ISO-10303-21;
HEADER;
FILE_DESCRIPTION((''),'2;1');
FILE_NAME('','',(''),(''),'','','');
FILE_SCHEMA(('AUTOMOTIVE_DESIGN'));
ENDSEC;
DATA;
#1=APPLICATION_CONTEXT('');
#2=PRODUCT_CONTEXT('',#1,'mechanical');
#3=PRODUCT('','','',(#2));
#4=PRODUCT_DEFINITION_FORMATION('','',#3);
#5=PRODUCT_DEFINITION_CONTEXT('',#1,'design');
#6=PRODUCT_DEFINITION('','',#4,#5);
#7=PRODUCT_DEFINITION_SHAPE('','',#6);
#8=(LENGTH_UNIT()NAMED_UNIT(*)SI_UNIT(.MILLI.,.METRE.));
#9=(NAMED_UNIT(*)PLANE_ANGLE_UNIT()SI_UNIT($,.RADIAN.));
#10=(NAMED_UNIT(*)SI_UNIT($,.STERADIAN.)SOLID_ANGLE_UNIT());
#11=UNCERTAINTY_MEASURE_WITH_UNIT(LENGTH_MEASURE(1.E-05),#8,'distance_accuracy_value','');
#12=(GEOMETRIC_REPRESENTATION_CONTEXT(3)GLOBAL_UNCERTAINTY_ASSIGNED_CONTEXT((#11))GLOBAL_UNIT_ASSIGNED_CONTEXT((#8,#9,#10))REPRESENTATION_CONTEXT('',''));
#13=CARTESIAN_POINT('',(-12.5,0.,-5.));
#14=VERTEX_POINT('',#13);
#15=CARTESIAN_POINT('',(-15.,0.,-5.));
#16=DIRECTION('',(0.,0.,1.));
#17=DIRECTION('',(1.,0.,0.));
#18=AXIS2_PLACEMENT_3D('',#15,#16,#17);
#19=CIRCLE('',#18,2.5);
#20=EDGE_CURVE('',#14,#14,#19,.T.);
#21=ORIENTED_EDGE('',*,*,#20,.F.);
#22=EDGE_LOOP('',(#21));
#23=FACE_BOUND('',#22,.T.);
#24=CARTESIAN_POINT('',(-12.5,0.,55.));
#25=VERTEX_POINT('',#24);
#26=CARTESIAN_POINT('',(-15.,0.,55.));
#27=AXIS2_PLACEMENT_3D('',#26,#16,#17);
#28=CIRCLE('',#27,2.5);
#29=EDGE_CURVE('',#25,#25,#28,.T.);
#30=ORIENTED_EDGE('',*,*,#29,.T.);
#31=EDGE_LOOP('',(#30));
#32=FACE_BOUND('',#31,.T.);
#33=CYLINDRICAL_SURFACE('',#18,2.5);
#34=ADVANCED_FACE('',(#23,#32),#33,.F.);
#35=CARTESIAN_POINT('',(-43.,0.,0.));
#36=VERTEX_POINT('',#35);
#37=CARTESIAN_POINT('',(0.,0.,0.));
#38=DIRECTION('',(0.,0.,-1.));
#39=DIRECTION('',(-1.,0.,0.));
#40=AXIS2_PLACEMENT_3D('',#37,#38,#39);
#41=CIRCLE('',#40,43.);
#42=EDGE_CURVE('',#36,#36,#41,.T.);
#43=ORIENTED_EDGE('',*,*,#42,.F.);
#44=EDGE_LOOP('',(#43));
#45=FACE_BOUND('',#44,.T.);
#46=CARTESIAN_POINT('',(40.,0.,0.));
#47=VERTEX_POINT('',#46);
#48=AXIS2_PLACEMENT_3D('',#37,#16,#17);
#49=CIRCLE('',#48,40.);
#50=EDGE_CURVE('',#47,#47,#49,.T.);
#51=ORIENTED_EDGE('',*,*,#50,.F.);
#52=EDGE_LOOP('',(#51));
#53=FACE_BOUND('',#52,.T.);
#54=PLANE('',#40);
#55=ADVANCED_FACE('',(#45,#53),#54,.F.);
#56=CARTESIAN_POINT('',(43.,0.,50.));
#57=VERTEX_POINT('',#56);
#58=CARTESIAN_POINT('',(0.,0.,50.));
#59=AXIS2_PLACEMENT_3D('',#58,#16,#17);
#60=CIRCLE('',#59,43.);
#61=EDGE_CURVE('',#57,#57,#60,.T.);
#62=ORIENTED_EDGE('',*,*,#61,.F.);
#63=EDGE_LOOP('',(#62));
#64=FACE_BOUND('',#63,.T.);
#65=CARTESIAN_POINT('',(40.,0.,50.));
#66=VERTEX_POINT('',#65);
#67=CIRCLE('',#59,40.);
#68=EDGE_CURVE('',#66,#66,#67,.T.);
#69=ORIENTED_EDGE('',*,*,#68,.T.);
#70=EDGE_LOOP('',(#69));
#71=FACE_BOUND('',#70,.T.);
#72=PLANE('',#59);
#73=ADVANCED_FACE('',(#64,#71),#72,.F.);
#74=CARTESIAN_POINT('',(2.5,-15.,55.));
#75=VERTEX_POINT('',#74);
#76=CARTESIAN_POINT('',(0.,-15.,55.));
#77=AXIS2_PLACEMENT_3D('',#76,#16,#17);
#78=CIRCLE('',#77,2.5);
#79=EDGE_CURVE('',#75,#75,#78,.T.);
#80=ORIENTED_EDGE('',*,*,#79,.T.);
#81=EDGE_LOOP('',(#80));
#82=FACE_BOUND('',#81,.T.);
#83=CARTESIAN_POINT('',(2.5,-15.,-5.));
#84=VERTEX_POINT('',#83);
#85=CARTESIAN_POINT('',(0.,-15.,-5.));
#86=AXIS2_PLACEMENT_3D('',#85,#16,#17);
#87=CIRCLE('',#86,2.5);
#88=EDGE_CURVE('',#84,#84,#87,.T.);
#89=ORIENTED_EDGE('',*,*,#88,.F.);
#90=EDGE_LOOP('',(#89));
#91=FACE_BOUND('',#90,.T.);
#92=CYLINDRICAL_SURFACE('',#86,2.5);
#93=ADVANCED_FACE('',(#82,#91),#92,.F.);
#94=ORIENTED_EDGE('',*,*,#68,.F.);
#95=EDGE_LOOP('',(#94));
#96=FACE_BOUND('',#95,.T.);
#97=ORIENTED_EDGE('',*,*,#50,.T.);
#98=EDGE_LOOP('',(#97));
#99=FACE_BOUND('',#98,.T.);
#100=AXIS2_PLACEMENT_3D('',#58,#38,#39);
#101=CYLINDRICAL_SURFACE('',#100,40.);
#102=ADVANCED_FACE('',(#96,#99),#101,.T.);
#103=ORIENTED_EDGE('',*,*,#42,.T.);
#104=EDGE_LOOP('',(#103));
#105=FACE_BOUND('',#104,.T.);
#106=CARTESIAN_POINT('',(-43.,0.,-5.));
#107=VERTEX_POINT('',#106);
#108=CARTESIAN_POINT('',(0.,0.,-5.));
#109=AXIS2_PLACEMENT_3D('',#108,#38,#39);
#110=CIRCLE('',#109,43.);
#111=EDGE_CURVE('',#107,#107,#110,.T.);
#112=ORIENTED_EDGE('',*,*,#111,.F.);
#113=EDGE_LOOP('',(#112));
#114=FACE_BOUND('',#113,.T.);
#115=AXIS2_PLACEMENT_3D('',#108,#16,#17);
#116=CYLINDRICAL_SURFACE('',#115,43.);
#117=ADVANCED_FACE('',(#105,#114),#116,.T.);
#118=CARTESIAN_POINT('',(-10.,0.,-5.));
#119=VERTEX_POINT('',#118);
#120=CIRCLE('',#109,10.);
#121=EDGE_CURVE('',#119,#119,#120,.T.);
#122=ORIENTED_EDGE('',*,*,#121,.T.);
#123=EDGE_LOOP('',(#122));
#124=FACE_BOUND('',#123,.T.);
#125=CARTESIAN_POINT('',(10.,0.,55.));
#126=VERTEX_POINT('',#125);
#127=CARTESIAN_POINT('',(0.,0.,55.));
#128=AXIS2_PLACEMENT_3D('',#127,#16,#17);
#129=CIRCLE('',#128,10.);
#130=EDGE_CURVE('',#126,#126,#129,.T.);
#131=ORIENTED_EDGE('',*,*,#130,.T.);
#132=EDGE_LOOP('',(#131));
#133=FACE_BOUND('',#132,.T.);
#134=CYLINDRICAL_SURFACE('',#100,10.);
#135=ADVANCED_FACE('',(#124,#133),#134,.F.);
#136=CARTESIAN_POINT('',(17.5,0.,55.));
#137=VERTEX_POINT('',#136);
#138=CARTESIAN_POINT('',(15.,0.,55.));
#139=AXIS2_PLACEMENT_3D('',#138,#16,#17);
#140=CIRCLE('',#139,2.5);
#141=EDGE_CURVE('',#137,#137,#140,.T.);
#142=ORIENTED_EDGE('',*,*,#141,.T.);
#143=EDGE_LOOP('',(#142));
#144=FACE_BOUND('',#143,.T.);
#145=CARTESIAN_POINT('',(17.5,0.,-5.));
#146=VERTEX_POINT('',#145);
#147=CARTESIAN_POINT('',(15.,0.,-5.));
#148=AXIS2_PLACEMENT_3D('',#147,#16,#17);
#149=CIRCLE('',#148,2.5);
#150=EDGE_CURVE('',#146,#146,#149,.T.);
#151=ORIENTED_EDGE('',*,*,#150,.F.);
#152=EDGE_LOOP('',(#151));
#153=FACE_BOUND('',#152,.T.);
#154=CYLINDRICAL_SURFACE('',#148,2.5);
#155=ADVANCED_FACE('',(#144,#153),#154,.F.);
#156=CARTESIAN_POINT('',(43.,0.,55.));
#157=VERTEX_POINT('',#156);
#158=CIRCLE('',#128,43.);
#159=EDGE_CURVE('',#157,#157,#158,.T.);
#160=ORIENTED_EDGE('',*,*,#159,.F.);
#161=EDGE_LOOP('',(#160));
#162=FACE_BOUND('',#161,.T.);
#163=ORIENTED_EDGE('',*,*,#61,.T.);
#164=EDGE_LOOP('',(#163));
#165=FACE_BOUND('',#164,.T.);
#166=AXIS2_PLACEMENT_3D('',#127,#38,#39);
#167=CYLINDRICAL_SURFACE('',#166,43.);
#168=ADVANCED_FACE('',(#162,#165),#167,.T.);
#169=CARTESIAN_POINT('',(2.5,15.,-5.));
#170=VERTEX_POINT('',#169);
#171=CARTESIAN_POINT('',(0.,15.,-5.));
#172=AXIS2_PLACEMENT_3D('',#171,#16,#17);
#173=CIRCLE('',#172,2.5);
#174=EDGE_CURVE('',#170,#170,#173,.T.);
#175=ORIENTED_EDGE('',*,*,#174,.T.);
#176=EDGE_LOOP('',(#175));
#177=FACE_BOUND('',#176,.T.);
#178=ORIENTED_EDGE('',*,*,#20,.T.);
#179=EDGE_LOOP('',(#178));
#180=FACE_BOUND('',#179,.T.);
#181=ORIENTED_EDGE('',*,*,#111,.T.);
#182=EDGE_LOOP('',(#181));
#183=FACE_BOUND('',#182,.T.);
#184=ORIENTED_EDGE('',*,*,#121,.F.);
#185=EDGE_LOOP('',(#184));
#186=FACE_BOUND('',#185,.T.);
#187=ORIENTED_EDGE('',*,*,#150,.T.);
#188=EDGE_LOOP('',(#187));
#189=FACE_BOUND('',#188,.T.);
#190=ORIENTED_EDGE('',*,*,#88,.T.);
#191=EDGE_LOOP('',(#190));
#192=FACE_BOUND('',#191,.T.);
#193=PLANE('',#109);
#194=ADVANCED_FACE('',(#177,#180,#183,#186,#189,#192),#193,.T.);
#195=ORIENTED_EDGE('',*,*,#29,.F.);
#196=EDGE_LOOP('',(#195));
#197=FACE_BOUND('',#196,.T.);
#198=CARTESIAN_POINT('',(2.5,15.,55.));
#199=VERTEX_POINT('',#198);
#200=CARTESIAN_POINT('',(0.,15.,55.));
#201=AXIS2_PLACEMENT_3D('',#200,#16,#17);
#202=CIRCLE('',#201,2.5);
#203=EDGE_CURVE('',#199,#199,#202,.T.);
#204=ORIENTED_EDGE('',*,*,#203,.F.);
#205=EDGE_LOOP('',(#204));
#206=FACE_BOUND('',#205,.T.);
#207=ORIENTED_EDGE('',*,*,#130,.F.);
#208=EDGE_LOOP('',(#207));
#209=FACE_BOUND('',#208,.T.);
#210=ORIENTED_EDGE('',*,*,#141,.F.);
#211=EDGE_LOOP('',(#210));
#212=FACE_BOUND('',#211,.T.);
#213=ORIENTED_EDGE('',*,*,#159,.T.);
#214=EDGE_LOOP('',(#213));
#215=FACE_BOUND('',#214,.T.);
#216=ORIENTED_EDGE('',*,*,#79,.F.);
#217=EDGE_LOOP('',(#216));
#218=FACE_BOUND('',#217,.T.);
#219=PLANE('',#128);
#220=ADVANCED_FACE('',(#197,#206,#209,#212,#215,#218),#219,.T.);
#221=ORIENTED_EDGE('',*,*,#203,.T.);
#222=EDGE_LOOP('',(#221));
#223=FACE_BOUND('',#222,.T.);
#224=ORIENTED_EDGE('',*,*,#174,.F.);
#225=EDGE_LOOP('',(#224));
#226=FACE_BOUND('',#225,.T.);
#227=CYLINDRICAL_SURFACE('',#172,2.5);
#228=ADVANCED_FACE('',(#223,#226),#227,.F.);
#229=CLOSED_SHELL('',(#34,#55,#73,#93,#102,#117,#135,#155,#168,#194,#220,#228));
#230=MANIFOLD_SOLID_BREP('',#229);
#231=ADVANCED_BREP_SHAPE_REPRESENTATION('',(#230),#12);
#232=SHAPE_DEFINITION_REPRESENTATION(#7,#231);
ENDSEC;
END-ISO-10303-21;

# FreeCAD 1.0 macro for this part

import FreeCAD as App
import Part
import Sketcher

V = App.Vector
Q = App.Units.Quantity

doc = App.newDocument("Part")
params = doc.addObject("Spreadsheet::Sheet", "Params")
for row, (alias, value) in enumerate([
    ("sketch1_diameter", "80 mm"),
    ("sketch1_diameter2", "20 mm"),
    ("pad1_length", "50 mm"),
    ("sketch2_diameter", "86 mm"),
    ("sketch2_diameter2", "20 mm"),
    ("pad2_length", "5 mm"),
    ("sketch3_diameter", "86 mm"),
    ("sketch3_diameter2", "20 mm"),
    ("pad3_length", "5 mm"),
    ("sketch4_diameter", "5 mm"),
], start=1):
    params.set(f"A{row}", alias)
    params.set(f"B{row}", "=" + value)
    params.setAlias(f"B{row}", alias)

body = doc.addObject("PartDesign::Body", "Body")

sketch1 = body.newObject("Sketcher::SketchObject", "Sketch")
sketch1.AttachmentSupport = (doc.getObject("XY_Plane"), [""])
sketch1.MapMode = "FlatFace"
sketch1.addGeometry(Part.Circle(V(0, 0, 0), V(0, 0, 1), 40), False)
sketch1.addGeometry(Part.Circle(V(0, 0, 0), V(0, 0, 1), 10), False)
sketch1.addConstraint(Sketcher.Constraint("Coincident", 0, 3, -1, 1))
sketch1.addConstraint(Sketcher.Constraint("Coincident", 1, 3, -1, 1))
sketch1.addConstraint(Sketcher.Constraint("Diameter", 0, Q("80 mm")))
sketch1.addConstraint(Sketcher.Constraint("Diameter", 1, Q("20 mm")))
sketch1.setExpression("Constraints[2]", "Params.sketch1_diameter")
sketch1.setExpression("Constraints[3]", "Params.sketch1_diameter2")
pad1 = body.newObject("PartDesign::Pad", "Pad")
pad1.Profile = sketch1
pad1.setExpression("Length", "Params.pad1_length")

sketch2 = body.newObject("Sketcher::SketchObject", "Sketch001")
sketch2.AttachmentSupport = (doc.getObject("XY_Plane"), [""])
sketch2.MapMode = "FlatFace"
sketch2.AttachmentOffset = App.Placement(V(0, 0, 50), App.Rotation())
sketch2.addGeometry(Part.Circle(V(0, 0, 0), V(0, 0, 1), 43), False)
sketch2.addGeometry(Part.Circle(V(0, 0, 0), V(0, 0, 1), 10), False)
sketch2.addConstraint(Sketcher.Constraint("Coincident", 0, 3, -1, 1))
sketch2.addConstraint(Sketcher.Constraint("Coincident", 1, 3, -1, 1))
sketch2.addConstraint(Sketcher.Constraint("Diameter", 0, Q("86 mm")))
sketch2.addConstraint(Sketcher.Constraint("Diameter", 1, Q("20 mm")))
sketch2.setExpression("Constraints[2]", "Params.sketch2_diameter")
sketch2.setExpression("Constraints[3]", "Params.sketch2_diameter2")
pad2 = body.newObject("PartDesign::Pad", "Pad001")
pad2.Profile = sketch2
pad2.setExpression("Length", "Params.pad2_length")

sketch3 = body.newObject("Sketcher::SketchObject", "Sketch002")
sketch3.AttachmentSupport = (doc.getObject("XY_Plane"), [""])
sketch3.MapMode = "FlatFace"
sketch3.addGeometry(Part.Circle(V(0, 0, 0), V(0, 0, 1), 43), False)
sketch3.addGeometry(Part.Circle(V(0, 0, 0), V(0, 0, 1), 10), False)
sketch3.addConstraint(Sketcher.Constraint("Coincident", 0, 3, -1, 1))
sketch3.addConstraint(Sketcher.Constraint("Coincident", 1, 3, -1, 1))
sketch3.addConstraint(Sketcher.Constraint("Diameter", 0, Q("86 mm")))
sketch3.addConstraint(Sketcher.Constraint("Diameter", 1, Q("20 mm")))
sketch3.setExpression("Constraints[2]", "Params.sketch3_diameter")
sketch3.setExpression("Constraints[3]", "Params.sketch3_diameter2")
pad3 = body.newObject("PartDesign::Pad", "Pad002")
pad3.Profile = sketch3
pad3.setExpression("Length", "Params.pad3_length")
pad3.Reversed = True

sketch4 = body.newObject("Sketcher::SketchObject", "Sketch003")
sketch4.AttachmentSupport = (doc.getObject("XY_Plane"), [""])
sketch4.MapMode = "FlatFace"
sketch4.AttachmentOffset = App.Placement(V(0, 0, 55), App.Rotation())
sketch4.addGeometry(Part.Circle(V(0, 15, 0), V(0, 0, 1), 2.5), False)
sketch4.addGeometry(Part.Circle(V(15, 0, 0), V(0, 0, 1), 2.5), False)
sketch4.addGeometry(Part.Circle(V(0, -15, 0), V(0, 0, 1), 2.5), False)
sketch4.addGeometry(Part.Circle(V(-15, 0, 0), V(0, 0, 1), 2.5), False)
sketch4.addConstraint(Sketcher.Constraint("Equal", 0, 1))
sketch4.addConstraint(Sketcher.Constraint("Equal", 1, 2))
sketch4.addConstraint(Sketcher.Constraint("Equal", 2, 3))
sketch4.addConstraint(Sketcher.Constraint("Symmetric", 0, 3, 2, 3, -1, 1))
sketch4.addConstraint(Sketcher.Constraint("Symmetric", 1, 3, 3, 3, -1, 1))
sketch4.addConstraint(Sketcher.Constraint("PointOnObject", 0, 3, -2))
sketch4.addConstraint(Sketcher.Constraint("PointOnObject", 1, 3, -1))
sketch4.addConstraint(Sketcher.Constraint("Diameter", 0, Q("5 mm")))
sketch4.addConstraint(Sketcher.Constraint("DistanceY", -1, 1, 0, 3, Q("15 mm")))
sketch4.addConstraint(Sketcher.Constraint("DistanceX", -1, 1, 1, 3, Q("15 mm")))
sketch4.setExpression("Constraints[7]", "Params.sketch4_diameter")
pocket1 = body.newObject("PartDesign::Pocket", "Pocket")
pocket1.Profile = sketch4
pocket1.Type = "ThroughAll"

doc.recompute()
